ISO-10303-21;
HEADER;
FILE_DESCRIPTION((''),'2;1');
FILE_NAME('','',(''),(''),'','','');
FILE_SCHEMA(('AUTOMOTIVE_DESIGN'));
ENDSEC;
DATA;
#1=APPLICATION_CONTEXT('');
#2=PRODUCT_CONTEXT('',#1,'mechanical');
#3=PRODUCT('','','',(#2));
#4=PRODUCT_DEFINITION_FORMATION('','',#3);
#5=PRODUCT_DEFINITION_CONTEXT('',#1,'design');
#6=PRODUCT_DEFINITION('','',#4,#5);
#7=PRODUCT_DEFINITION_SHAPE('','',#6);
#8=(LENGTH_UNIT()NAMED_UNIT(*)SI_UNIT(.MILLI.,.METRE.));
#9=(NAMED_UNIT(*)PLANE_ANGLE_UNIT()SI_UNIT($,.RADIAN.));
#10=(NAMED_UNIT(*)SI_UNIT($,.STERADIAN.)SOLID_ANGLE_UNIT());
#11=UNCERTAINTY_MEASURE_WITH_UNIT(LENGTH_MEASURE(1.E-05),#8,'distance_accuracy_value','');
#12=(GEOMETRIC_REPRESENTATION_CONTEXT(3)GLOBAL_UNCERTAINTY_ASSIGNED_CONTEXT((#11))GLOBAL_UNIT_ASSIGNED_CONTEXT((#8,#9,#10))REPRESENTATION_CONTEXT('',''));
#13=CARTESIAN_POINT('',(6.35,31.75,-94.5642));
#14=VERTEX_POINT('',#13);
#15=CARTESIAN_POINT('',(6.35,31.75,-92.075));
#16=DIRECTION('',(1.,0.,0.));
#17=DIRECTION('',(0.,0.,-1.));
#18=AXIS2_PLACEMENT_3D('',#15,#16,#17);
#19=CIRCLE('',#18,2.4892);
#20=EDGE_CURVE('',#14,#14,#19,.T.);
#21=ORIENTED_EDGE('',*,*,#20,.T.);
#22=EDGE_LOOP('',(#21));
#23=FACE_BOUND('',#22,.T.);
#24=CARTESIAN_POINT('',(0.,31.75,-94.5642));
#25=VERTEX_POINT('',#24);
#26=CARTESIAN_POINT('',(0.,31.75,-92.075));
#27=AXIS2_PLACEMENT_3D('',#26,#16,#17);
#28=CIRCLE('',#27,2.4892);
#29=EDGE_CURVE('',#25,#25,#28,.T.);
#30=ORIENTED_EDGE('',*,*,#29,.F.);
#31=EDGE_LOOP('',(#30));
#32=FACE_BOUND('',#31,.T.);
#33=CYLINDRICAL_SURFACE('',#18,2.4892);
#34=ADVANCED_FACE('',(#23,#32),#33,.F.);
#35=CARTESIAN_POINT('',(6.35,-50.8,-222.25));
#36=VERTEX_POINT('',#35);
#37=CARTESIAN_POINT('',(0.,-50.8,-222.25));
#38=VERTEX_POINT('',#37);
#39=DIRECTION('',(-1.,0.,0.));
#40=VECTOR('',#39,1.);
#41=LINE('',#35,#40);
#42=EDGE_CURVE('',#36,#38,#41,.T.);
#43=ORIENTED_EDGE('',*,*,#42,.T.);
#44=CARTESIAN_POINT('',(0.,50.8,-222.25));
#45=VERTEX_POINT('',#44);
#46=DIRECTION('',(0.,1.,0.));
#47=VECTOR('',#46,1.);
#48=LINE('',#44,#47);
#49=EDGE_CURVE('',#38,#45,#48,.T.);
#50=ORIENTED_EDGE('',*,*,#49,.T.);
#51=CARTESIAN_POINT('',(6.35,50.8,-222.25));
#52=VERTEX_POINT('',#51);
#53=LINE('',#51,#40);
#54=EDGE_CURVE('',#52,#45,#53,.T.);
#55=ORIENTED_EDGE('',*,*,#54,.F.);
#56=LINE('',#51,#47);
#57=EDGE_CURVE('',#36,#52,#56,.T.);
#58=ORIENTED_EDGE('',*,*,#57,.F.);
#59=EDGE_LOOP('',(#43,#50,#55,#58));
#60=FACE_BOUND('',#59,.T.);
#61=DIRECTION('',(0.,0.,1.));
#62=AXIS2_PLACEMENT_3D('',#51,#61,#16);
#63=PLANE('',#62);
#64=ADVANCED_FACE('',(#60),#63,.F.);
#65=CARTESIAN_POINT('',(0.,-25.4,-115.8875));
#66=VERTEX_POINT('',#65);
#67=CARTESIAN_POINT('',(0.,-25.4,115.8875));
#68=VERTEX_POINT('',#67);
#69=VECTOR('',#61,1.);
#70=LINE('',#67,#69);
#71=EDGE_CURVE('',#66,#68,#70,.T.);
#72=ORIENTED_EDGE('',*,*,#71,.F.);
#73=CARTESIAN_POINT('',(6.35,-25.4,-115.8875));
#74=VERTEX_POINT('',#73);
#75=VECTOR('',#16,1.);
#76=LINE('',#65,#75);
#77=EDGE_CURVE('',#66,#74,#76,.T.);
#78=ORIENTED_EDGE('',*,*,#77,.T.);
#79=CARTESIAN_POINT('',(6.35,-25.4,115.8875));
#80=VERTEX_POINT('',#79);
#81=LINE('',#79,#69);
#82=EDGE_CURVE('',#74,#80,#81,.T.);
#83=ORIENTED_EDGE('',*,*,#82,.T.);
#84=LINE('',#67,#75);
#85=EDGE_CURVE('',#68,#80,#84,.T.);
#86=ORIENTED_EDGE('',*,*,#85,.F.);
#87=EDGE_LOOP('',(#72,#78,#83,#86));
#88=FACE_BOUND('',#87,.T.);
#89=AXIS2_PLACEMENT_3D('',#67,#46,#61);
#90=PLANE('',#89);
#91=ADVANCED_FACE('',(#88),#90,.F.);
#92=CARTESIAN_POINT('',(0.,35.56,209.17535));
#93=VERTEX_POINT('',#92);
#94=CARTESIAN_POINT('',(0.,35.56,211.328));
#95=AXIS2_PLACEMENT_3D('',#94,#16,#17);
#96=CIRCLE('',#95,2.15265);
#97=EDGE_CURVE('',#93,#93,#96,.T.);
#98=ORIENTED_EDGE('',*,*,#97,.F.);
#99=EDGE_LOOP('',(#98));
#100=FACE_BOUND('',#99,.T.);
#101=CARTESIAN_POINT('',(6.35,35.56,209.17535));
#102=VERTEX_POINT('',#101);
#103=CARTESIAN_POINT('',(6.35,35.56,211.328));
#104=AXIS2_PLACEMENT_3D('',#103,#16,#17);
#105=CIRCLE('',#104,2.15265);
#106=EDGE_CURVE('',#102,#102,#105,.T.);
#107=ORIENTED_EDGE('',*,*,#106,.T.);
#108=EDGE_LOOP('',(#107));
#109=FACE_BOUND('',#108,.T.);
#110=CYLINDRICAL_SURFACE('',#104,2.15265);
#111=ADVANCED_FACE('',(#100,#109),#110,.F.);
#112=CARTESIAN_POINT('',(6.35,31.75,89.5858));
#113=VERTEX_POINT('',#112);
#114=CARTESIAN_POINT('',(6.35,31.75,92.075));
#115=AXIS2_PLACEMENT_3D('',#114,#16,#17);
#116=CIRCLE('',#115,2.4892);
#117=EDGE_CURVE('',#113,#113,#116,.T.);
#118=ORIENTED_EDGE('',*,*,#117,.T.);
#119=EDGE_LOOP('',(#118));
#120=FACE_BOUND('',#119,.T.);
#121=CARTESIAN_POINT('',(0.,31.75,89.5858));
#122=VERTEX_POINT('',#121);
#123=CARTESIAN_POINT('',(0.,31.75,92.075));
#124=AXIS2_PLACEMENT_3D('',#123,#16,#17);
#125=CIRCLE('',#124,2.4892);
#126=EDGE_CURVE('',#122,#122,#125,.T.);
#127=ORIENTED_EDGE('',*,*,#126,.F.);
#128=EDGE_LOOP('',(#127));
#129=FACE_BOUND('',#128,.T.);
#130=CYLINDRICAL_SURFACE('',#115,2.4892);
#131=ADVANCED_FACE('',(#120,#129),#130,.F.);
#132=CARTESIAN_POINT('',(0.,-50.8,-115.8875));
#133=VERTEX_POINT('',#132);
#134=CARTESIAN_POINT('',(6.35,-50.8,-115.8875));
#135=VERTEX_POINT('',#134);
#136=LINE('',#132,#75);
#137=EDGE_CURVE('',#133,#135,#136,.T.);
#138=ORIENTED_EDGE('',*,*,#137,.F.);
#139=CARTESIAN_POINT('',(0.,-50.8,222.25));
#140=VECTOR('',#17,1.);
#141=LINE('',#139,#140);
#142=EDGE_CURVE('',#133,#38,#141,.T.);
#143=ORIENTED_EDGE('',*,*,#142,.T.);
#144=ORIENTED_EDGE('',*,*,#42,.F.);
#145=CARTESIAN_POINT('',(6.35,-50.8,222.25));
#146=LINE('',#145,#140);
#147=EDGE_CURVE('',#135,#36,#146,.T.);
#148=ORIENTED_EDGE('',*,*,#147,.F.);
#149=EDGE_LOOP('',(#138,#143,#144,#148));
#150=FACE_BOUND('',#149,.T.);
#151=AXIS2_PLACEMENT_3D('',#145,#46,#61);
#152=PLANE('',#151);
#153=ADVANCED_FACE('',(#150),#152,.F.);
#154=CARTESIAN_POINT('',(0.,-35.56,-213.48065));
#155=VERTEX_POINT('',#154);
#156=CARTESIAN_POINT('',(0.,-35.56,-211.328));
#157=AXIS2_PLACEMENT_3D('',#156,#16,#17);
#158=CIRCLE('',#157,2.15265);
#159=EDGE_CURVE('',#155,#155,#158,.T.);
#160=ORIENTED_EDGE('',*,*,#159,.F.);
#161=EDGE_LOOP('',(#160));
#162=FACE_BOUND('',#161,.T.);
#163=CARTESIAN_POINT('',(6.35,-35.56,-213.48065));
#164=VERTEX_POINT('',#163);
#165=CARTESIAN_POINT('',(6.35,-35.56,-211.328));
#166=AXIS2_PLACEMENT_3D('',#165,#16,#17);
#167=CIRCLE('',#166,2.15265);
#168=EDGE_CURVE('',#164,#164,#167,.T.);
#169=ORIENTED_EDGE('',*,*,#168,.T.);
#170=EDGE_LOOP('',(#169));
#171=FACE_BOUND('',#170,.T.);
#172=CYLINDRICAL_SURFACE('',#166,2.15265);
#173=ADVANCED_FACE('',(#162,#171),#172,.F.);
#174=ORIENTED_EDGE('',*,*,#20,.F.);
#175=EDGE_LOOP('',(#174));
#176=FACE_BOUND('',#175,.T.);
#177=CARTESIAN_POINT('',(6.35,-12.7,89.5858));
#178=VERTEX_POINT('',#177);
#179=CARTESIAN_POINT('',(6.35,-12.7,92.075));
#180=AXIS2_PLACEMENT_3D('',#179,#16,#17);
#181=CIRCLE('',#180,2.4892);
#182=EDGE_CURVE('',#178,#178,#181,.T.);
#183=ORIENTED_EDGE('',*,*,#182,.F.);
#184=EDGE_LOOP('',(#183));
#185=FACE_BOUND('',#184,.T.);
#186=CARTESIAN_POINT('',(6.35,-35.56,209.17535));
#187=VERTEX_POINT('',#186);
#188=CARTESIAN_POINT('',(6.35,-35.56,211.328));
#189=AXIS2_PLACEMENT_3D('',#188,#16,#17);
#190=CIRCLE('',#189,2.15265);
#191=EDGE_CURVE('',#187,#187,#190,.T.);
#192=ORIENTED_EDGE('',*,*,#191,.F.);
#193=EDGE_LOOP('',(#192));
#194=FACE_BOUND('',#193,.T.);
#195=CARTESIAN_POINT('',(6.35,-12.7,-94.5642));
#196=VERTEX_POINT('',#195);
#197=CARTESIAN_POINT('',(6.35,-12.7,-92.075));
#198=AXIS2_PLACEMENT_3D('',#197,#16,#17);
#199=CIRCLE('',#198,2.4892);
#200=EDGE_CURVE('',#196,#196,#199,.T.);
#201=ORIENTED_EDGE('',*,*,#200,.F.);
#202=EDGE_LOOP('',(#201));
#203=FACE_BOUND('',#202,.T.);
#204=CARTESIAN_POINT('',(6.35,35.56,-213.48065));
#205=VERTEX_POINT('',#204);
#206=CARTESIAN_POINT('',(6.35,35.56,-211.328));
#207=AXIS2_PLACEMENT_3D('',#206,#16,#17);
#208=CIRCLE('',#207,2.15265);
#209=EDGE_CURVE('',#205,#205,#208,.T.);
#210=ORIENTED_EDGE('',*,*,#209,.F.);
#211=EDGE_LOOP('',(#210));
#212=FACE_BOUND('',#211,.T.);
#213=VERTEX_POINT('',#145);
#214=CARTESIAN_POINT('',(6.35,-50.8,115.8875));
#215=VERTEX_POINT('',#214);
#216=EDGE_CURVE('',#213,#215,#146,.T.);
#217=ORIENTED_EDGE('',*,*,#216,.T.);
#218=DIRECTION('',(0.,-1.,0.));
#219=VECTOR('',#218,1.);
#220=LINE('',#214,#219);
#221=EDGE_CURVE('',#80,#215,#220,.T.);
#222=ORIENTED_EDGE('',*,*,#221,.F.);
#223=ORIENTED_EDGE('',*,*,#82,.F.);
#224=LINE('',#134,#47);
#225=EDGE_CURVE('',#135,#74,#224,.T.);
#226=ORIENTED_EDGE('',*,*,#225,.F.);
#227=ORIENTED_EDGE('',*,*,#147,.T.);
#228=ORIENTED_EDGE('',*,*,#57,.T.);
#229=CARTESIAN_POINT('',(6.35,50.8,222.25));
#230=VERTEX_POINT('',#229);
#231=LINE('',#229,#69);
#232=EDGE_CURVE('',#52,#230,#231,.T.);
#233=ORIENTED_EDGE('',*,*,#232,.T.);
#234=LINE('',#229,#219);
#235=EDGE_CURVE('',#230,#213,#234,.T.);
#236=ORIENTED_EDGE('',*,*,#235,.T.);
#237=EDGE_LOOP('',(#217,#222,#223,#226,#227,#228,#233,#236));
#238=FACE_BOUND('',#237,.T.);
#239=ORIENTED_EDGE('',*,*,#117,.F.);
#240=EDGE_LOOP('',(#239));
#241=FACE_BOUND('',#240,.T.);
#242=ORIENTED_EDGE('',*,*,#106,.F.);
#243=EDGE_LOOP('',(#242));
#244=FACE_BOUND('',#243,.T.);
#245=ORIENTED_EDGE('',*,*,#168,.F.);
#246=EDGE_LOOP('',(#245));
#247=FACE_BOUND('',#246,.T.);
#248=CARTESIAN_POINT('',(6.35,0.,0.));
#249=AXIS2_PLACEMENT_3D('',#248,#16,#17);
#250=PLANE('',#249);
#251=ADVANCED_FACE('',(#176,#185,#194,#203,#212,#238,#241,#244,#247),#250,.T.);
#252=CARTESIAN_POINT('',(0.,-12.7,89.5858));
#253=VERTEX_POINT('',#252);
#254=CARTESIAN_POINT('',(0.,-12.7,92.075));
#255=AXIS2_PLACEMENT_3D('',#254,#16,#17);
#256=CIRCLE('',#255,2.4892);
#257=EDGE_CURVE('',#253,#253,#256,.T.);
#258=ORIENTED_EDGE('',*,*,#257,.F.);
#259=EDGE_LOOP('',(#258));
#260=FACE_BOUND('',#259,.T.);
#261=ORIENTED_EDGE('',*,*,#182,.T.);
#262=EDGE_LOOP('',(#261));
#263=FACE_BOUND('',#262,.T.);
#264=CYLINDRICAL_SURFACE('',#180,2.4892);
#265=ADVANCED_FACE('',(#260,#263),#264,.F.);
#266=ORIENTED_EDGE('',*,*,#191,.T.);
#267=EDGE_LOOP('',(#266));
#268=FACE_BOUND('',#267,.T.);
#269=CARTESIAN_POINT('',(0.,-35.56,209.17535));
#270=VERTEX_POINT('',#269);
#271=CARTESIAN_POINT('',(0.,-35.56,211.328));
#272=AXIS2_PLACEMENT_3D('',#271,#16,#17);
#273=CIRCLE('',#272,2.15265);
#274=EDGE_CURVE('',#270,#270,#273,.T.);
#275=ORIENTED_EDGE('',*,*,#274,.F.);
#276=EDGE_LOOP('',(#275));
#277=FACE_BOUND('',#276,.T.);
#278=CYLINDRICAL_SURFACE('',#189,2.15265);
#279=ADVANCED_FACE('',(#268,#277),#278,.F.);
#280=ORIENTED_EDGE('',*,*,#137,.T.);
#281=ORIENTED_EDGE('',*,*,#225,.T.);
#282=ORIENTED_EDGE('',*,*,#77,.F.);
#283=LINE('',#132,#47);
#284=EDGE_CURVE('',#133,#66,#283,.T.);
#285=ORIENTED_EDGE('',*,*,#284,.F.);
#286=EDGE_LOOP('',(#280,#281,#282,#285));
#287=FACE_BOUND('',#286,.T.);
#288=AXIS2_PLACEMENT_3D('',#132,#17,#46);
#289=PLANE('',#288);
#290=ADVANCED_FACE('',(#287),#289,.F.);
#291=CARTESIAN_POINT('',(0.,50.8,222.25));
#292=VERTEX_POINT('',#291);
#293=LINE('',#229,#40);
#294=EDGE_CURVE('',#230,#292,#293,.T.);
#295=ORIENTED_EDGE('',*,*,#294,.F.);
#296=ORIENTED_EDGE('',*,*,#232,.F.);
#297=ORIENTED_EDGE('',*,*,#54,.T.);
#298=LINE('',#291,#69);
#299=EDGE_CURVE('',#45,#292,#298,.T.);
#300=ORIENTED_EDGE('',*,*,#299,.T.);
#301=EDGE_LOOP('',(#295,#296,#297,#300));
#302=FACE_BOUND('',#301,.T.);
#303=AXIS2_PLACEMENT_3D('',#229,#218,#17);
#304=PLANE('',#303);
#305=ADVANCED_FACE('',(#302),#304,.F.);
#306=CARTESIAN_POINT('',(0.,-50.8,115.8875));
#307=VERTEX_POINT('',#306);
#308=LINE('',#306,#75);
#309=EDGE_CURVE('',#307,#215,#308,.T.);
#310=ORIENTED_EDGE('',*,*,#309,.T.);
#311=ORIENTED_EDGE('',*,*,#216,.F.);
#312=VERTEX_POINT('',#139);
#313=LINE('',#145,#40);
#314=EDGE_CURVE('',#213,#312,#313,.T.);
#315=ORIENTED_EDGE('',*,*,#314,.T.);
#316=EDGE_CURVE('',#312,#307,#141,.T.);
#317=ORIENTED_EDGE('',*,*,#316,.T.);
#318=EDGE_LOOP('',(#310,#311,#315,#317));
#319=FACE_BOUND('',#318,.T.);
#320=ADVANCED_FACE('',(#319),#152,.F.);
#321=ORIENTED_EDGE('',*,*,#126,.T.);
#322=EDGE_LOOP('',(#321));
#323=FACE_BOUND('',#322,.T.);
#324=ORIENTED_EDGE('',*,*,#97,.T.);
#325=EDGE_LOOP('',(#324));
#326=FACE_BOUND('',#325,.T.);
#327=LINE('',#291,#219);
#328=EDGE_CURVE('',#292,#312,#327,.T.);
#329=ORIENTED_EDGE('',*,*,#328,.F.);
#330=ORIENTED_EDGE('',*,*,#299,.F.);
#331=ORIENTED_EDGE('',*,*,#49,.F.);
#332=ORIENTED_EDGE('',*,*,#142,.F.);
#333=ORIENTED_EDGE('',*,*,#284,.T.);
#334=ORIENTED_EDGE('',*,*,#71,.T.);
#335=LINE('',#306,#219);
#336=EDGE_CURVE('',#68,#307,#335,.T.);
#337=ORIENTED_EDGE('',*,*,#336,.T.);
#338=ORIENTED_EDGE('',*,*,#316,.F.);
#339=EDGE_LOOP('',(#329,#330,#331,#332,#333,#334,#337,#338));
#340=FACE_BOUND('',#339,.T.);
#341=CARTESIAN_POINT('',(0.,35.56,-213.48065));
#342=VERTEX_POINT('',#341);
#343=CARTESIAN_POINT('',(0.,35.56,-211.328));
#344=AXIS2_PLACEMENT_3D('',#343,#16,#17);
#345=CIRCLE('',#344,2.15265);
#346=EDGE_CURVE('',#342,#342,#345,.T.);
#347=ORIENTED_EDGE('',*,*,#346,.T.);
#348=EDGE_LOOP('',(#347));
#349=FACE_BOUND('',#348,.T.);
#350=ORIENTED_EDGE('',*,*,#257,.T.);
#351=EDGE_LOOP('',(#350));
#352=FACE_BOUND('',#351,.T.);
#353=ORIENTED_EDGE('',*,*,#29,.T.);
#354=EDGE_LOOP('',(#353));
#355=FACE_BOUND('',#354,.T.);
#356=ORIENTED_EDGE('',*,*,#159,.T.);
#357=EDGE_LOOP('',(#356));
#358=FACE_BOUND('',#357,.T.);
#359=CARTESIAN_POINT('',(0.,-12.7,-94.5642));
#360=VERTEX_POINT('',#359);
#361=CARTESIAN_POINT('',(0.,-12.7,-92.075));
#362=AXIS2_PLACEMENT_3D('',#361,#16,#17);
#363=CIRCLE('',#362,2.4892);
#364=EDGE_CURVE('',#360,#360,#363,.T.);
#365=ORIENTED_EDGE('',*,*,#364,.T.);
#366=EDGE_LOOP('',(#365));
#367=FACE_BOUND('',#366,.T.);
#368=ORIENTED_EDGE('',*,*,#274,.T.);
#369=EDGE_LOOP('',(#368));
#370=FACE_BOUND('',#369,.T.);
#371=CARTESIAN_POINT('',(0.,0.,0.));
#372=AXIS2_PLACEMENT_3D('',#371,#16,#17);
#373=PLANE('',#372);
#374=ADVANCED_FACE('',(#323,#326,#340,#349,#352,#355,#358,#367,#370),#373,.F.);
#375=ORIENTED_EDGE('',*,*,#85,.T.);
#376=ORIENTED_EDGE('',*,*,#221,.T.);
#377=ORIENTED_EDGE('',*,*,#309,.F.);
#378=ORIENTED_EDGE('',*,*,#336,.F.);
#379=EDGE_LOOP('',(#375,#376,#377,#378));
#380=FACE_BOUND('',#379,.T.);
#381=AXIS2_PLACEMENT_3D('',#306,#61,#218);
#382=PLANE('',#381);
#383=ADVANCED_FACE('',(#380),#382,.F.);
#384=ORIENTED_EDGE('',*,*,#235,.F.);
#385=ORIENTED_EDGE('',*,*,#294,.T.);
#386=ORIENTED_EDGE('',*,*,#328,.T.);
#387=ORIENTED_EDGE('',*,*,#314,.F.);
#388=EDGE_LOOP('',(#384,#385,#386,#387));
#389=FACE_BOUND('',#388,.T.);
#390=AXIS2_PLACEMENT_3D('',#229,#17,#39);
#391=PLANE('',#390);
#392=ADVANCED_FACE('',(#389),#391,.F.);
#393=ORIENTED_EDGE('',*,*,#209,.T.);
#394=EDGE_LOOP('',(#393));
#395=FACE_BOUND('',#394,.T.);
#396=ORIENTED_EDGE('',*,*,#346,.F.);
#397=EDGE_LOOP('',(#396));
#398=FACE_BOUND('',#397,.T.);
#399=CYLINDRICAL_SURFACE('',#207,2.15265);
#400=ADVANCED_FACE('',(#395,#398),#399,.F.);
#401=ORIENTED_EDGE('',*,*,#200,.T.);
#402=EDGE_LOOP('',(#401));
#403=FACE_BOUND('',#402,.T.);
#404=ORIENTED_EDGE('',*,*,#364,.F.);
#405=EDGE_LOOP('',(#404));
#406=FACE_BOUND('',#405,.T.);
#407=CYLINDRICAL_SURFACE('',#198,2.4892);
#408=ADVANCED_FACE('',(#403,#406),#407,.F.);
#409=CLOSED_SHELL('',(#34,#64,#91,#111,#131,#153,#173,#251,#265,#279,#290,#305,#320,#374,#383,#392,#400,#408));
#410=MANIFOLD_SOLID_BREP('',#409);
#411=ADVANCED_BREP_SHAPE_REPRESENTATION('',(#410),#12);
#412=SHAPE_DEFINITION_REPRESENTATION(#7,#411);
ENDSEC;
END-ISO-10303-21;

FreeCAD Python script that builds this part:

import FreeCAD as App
import Part
import Sketcher
Q = App.Units.Quantity

doc = App.newDocument("Part")
body = doc.addObject("PartDesign::Body", "Body")

# Sketch on YZ plane
sketch1 = body.newObject("Sketcher::SketchObject", "Sketch")
sketch1.AttachmentSupport = (doc.getObject("YZ_Plane"), [""])
sketch1.MapMode = "FlatFace"
sketch1.addGeometry([
    Part.LineSegment(App.Vector(51, 222, 0), App.Vector(-51, 222, 0)),
    Part.LineSegment(App.Vector(-51, 222, 0), App.Vector(-51, -222, 0)),
    Part.LineSegment(App.Vector(-51, -222, 0), App.Vector(51, -222, 0)),
    Part.LineSegment(App.Vector(51, -222, 0), App.Vector(51, 222, 0)),
], False)
sketch1.addConstraint([
    Sketcher.Constraint("Coincident", 0, 2, 1, 1),
    Sketcher.Constraint("Coincident", 1, 2, 2, 1),
    Sketcher.Constraint("Coincident", 2, 2, 3, 1),
    Sketcher.Constraint("Coincident", 3, 2, 0, 1),
    Sketcher.Constraint("Horizontal", 0),
    Sketcher.Constraint("Vertical", 1),
    Sketcher.Constraint("Horizontal", 2),
    Sketcher.Constraint("Vertical", 3),
    Sketcher.Constraint("Symmetric", 0, 2, 2, 2, -1, 1),
    Sketcher.Constraint("DistanceX", 0, 2, 0, 1, Q("4 in")),
    Sketcher.Constraint("DistanceY", 1, 2, 1, 1, Q("17.5 in")),
])
pad1 = body.newObject("PartDesign::Pad", "Pad")
pad1.Profile = sketch1
pad1.Length = Q("0.25 in")

# Sketch on YZ plane
sketch2 = body.newObject("Sketcher::SketchObject", "Sketch001")
sketch2.AttachmentSupport = (doc.getObject("YZ_Plane"), [""])
sketch2.MapMode = "FlatFace"
sketch2.AttachmentOffset = App.Placement(App.Vector(0, 0, 0.25 * 25.4), App.Rotation())
sketch2.addGeometry([
    Part.Circle(App.Vector(31.8, -92.1, 0), App.Vector(0, 0, 1), 2.5),
    Part.Circle(App.Vector(-12.7, -92.1, 0), App.Vector(0, 0, 1), 2.5),
    Part.Circle(App.Vector(31.8, 92.1, 0), App.Vector(0, 0, 1), 2.5),
    Part.Circle(App.Vector(-12.7, 92.1, 0), App.Vector(0, 0, 1), 2.5),
], False)
sketch2.addConstraint([
    Sketcher.Constraint("Equal", 0, 1),
    Sketcher.Constraint("Equal", 1, 2),
    Sketcher.Constraint("Equal", 2, 3),
    Sketcher.Constraint("Symmetric", 0, 3, 2, 3, -1),
    Sketcher.Constraint("Symmetric", 1, 3, 3, 3, -1),
    Sketcher.Constraint("Horizontal", 0, 3, 1, 3),
    Sketcher.Constraint("Diameter", 0, Q("0.196 in")),
    Sketcher.Constraint("DistanceX", 1, 3, -1, 1, Q("0.5 in")),
    Sketcher.Constraint("DistanceX", -1, 1, 0, 3, Q("1.25 in")),
    Sketcher.Constraint("DistanceY", 0, 3, 2, 3, Q("7.25 in")),
])
doc.recompute()
hole = body.newObject("PartDesign::Hole", "Hole")
hole.Profile = sketch2
hole.ThreadType = "None"
hole.Diameter = Q("0.196 in")
hole.DepthType = "ThroughAll"

# Sketch on YZ plane
sketch3 = body.newObject("Sketcher::SketchObject", "Sketch002")
sketch3.AttachmentSupport = (doc.getObject("YZ_Plane"), [""])
sketch3.MapMode = "FlatFace"
sketch3.AttachmentOffset = App.Placement(App.Vector(0, 0, 0.25 * 25.4), App.Rotation())
sketch3.addGeometry([
    Part.Circle(App.Vector(35.6, 211.3, 0), App.Vector(0, 0, 1), 2.2),
    Part.Circle(App.Vector(-35.6, 211.3, 0), App.Vector(0, 0, 1), 2.2),
    Part.Circle(App.Vector(-35.6, -211.3, 0), App.Vector(0, 0, 1), 2.2),
    Part.Circle(App.Vector(35.6, -211.3, 0), App.Vector(0, 0, 1), 2.2),
], False)
sketch3.addConstraint([
    Sketcher.Constraint("Equal", 0, 1),
    Sketcher.Constraint("Equal", 1, 2),
    Sketcher.Constraint("Equal", 2, 3),
    Sketcher.Constraint("Symmetric", 0, 3, 2, 3, -1, 1),
    Sketcher.Constraint("Symmetric", 1, 3, 3, 3, -1, 1),
    Sketcher.Constraint("Symmetric", 0, 3, 1, 3, -2),
    Sketcher.Constraint("Diameter", 0, Q("0.1695 in")),
    Sketcher.Constraint("DistanceX", -1, 1, 0, 3, Q("1.4 in")),
    Sketcher.Constraint("DistanceY", -1, 1, 0, 3, Q("8.32 in")),
])
doc.recompute()
hole2 = body.newObject("PartDesign::Hole", "Hole001")
hole2.Profile = sketch3
hole2.ThreadType = "None"
hole2.Diameter = Q("0.1695 in")
hole2.DepthType = "ThroughAll"

# Sketch on YZ plane
sketch4 = body.newObject("Sketcher::SketchObject", "Sketch003")
sketch4.AttachmentSupport = (doc.getObject("YZ_Plane"), [""])
sketch4.MapMode = "FlatFace"
sketch4.AttachmentOffset = App.Placement(App.Vector(0, 0, 0.25 * 25.4), App.Rotation())
sketch4.addGeometry([
    Part.LineSegment(App.Vector(-25, 116, 0), App.Vector(-51, 116, 0)),
    Part.LineSegment(App.Vector(-51, 116, 0), App.Vector(-51, -116, 0)),
    Part.LineSegment(App.Vector(-51, -116, 0), App.Vector(-25, -116, 0)),
    Part.LineSegment(App.Vector(-25, -116, 0), App.Vector(-25, 116, 0)),
], False)
sketch4.addConstraint([
    Sketcher.Constraint("Coincident", 0, 2, 1, 1),
    Sketcher.Constraint("Coincident", 1, 2, 2, 1),
    Sketcher.Constraint("Coincident", 2, 2, 3, 1),
    Sketcher.Constraint("Coincident", 3, 2, 0, 1),
    Sketcher.Constraint("Horizontal", 0),
    Sketcher.Constraint("Vertical", 1),
    Sketcher.Constraint("Horizontal", 2),
    Sketcher.Constraint("Vertical", 3),
    Sketcher.Constraint("DistanceX", 0, 2, 0, 1, Q("1 in")),
    Sketcher.Constraint("DistanceX", 0, 2, -1, 1, Q("2 in")),
    Sketcher.Constraint("DistanceY", 1, 2, 1, 1, Q("9.125 in")),
    Sketcher.Constraint("DistanceY", -1, 1, 0, 2, Q("4.5625 in")),
])
pocket1 = body.newObject("PartDesign::Pocket", "Pocket")
pocket1.Profile = sketch4
pocket1.Type = "ThroughAll"

doc.recompute()
